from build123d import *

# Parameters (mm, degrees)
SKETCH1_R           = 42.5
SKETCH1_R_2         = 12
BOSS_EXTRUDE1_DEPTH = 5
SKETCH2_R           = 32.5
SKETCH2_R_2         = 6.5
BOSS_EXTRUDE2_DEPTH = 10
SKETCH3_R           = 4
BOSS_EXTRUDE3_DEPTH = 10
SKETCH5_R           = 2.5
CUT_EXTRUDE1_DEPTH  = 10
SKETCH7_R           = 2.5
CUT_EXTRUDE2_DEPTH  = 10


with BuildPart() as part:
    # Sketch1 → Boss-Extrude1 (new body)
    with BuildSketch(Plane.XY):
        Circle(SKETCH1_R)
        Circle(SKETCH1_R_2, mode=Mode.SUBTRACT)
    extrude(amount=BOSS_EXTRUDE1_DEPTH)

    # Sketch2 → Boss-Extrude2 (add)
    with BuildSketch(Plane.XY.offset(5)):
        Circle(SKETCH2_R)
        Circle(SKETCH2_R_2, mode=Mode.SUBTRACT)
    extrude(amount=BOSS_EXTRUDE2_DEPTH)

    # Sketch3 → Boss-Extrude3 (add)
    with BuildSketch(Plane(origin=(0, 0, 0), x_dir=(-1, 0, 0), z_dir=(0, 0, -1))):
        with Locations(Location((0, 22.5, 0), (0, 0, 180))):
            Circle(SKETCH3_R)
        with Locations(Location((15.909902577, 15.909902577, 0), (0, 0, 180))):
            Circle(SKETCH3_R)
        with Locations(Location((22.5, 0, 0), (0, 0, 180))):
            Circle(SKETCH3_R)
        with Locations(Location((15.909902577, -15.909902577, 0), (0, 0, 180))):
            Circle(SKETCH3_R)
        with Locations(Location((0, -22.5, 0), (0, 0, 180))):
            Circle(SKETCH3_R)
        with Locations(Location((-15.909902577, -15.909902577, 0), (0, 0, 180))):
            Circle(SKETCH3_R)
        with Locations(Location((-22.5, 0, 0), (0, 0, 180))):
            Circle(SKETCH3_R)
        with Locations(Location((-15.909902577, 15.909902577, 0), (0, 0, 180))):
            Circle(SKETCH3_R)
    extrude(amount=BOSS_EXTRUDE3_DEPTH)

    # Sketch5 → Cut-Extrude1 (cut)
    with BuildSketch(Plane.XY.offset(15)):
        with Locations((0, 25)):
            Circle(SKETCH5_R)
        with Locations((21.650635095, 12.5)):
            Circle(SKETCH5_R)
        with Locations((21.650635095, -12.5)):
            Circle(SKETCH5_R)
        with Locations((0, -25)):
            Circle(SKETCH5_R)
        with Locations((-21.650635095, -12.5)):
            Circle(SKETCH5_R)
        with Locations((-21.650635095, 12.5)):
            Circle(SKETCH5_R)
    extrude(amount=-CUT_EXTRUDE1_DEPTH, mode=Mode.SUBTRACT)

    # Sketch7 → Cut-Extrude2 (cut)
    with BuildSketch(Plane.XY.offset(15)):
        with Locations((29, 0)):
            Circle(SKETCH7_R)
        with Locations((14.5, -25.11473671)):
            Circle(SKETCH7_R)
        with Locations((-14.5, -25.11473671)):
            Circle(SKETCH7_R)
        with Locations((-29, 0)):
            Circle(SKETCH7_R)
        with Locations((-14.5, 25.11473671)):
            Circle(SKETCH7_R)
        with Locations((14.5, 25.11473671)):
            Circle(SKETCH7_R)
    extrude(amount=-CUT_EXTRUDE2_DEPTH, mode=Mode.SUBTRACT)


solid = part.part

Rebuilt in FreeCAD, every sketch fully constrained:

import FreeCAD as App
import Part
import Sketcher
from FreeCAD import Vector
Q = App.Units.Quantity

doc = App.newDocument("Part")
body = doc.addObject("PartDesign::Body", "Body")

# Sketch on XY plane
sketch1 = doc.addObject("Sketcher::SketchObject", "Sketch")
body.addObject(sketch1)
sketch1.AttachmentSupport = (doc.XY_Plane, [""])
sketch1.MapMode = "FlatFace"
sketch1.addGeometry(Part.Circle(Vector(0, 0, 0), Vector(0, 0, 1), 42.5), False)
sketch1.addGeometry(Part.Circle(Vector(0, 0, 0), Vector(0, 0, 1), 12), False)
sketch1.addConstraint(Sketcher.Constraint("Coincident", 0, 3, -1, 1))
sketch1.addConstraint(Sketcher.Constraint("Coincident", 1, 3, -1, 1))
sketch1.addConstraint(Sketcher.Constraint("Diameter", 0, Q("85 mm")))
sketch1.addConstraint(Sketcher.Constraint("Diameter", 1, Q("24 mm")))
pad1 = doc.addObject("PartDesign::Pad", "Pad")
body.addObject(pad1)
pad1.Profile = sketch1
pad1.Length = 5

# Sketch on XY plane
sketch2 = doc.addObject("Sketcher::SketchObject", "Sketch001")
body.addObject(sketch2)
sketch2.AttachmentSupport = (doc.XY_Plane, [""])
sketch2.MapMode = "FlatFace"
sketch2.AttachmentOffset = App.Placement(Vector(0, 0, 5), App.Rotation())
sketch2.addGeometry(Part.Circle(Vector(0, 0, 0), Vector(0, 0, 1), 32.5), False)
sketch2.addGeometry(Part.Circle(Vector(0, 0, 0), Vector(0, 0, 1), 6.5), False)
sketch2.addConstraint(Sketcher.Constraint("Coincident", 0, 3, -1, 1))
sketch2.addConstraint(Sketcher.Constraint("Coincident", 1, 3, -1, 1))
sketch2.addConstraint(Sketcher.Constraint("Diameter", 0, Q("65 mm")))
sketch2.addConstraint(Sketcher.Constraint("Diameter", 1, Q("13 mm")))
pad2 = doc.addObject("PartDesign::Pad", "Pad001")
body.addObject(pad2)
pad2.Profile = sketch2
pad2.Length = 10

# Sketch on XY plane
sketch3 = doc.addObject("Sketcher::SketchObject", "Sketch002")
body.addObject(sketch3)
sketch3.AttachmentSupport = (doc.XY_Plane, [""])
sketch3.MapMode = "FlatFace"
sketch3.addGeometry(Part.Circle(Vector(0, 22.5, 0), Vector(0, 0, 1), 4), False)
sketch3.addGeometry(Part.Circle(Vector(-15.909903, 15.909903, 0), Vector(0, 0, 1), 4), False)
sketch3.addGeometry(Part.Circle(Vector(-22.5, 0, 0), Vector(0, 0, 1), 4), False)
sketch3.addGeometry(Part.Circle(Vector(-15.909903, -15.909903, 0), Vector(0, 0, 1), 4), False)
sketch3.addGeometry(Part.Circle(Vector(0, -22.5, 0), Vector(0, 0, 1), 4), False)
sketch3.addGeometry(Part.Circle(Vector(15.909903, -15.909903, 0), Vector(0, 0, 1), 4), False)
sketch3.addGeometry(Part.Circle(Vector(22.5, 0, 0), Vector(0, 0, 1), 4), False)
sketch3.addGeometry(Part.Circle(Vector(15.909903, 15.909903, 0), Vector(0, 0, 1), 4), False)
sketch3.addConstraint(Sketcher.Constraint("Equal", 0, 1))
sketch3.addConstraint(Sketcher.Constraint("Equal", 1, 2))
sketch3.addConstraint(Sketcher.Constraint("Equal", 2, 3))
sketch3.addConstraint(Sketcher.Constraint("Equal", 3, 4))
sketch3.addConstraint(Sketcher.Constraint("Equal", 4, 5))
sketch3.addConstraint(Sketcher.Constraint("Equal", 5, 6))
sketch3.addConstraint(Sketcher.Constraint("Equal", 6, 7))
sketch3.addConstraint(Sketcher.Constraint("Symmetric", 0, 3, 4, 3, -1, 1))
sketch3.addConstraint(Sketcher.Constraint("Symmetric", 1, 3, 5, 3, -1, 1))
sketch3.addConstraint(Sketcher.Constraint("Symmetric", 2, 3, 6, 3, -1, 1))
sketch3.addConstraint(Sketcher.Constraint("Symmetric", 3, 3, 7, 3, -1, 1))
sketch3.addConstraint(Sketcher.Constraint("Symmetric", 3, 3, 5, 3, -2))
sketch3.addConstraint(Sketcher.Constraint("PointOnObject", 0, 3, -2))
sketch3.addConstraint(Sketcher.Constraint("PointOnObject", 2, 3, -1))
sketch3.addConstraint(Sketcher.Constraint("Diameter", 0, Q("8 mm")))
sketch3.addConstraint(Sketcher.Constraint("DistanceY", 4, 3, 0, 3, Q("45 mm")))
sketch3.addConstraint(Sketcher.Constraint("DistanceX", 2, 3, -1, 1, Q("22.5 mm")))
sketch3.addConstraint(Sketcher.Constraint("DistanceX", 1, 3, -1, 1, Q("15.909903 mm")))
sketch3.addConstraint(Sketcher.Constraint("DistanceY", -1, 1, 1, 3, Q("15.909903 mm")))
pad3 = doc.addObject("PartDesign::Pad", "Pad002")
body.addObject(pad3)
pad3.Profile = sketch3
pad3.Length = 10
pad3.Reversed = True

# Sketch on XY plane
sketch4 = doc.addObject("Sketcher::SketchObject", "Sketch003")
body.addObject(sketch4)
sketch4.AttachmentSupport = (doc.XY_Plane, [""])
sketch4.MapMode = "FlatFace"
sketch4.AttachmentOffset = App.Placement(Vector(0, 0, 15), App.Rotation())
sketch4.addGeometry(Part.Circle(Vector(0, 25, 0), Vector(0, 0, 1), 2.5), False)
sketch4.addGeometry(Part.Circle(Vector(21.650635, 12.5, 0), Vector(0, 0, 1), 2.5), False)
sketch4.addGeometry(Part.Circle(Vector(21.650635, -12.5, 0), Vector(0, 0, 1), 2.5), False)
sketch4.addGeometry(Part.Circle(Vector(0, -25, 0), Vector(0, 0, 1), 2.5), False)
sketch4.addGeometry(Part.Circle(Vector(-21.650635, -12.5, 0), Vector(0, 0, 1), 2.5), False)
sketch4.addGeometry(Part.Circle(Vector(-21.650635, 12.5, 0), Vector(0, 0, 1), 2.5), False)
sketch4.addConstraint(Sketcher.Constraint("Equal", 0, 1))
sketch4.addConstraint(Sketcher.Constraint("Equal", 1, 2))
sketch4.addConstraint(Sketcher.Constraint("Equal", 2, 3))
sketch4.addConstraint(Sketcher.Constraint("Equal", 3, 4))
sketch4.addConstraint(Sketcher.Constraint("Equal", 4, 5))
sketch4.addConstraint(Sketcher.Constraint("Symmetric", 0, 3, 3, 3, -1, 1))
sketch4.addConstraint(Sketcher.Constraint("Symmetric", 1, 3, 4, 3, -1, 1))
sketch4.addConstraint(Sketcher.Constraint("Symmetric", 2, 3, 5, 3, -1, 1))
sketch4.addConstraint(Sketcher.Constraint("Symmetric", 2, 3, 4, 3, -2))
sketch4.addConstraint(Sketcher.Constraint("PointOnObject", 0, 3, -2))
sketch4.addConstraint(Sketcher.Constraint("Diameter", 0, Q("5 mm")))
sketch4.addConstraint(Sketcher.Constraint("DistanceY", -1, 1, 0, 3, Q("25 mm")))
sketch4.addConstraint(Sketcher.Constraint("DistanceY", 2, 3, 1, 3, Q("25 mm")))
sketch4.addConstraint(Sketcher.Constraint("DistanceX", 4, 3, 2, 3, Q("43.30127 mm")))
pocket1 = doc.addObject("PartDesign::Pocket", "Pocket")
body.addObject(pocket1)
pocket1.Profile = sketch4
pocket1.Length = 10

# Sketch on XY plane
sketch5 = doc.addObject("Sketcher::SketchObject", "Sketch004")
body.addObject(sketch5)
sketch5.AttachmentSupport = (doc.XY_Plane, [""])
sketch5.MapMode = "FlatFace"
sketch5.AttachmentOffset = App.Placement(Vector(0, 0, 15), App.Rotation())
sketch5.addGeometry(Part.Circle(Vector(29, 0, 0), Vector(0, 0, 1), 2.5), False)
sketch5.addGeometry(Part.Circle(Vector(14.5, -25.114737, 0), Vector(0, 0, 1), 2.5), False)
sketch5.addGeometry(Part.Circle(Vector(-14.5, -25.114737, 0), Vector(0, 0, 1), 2.5), False)
sketch5.addGeometry(Part.Circle(Vector(-29, 0, 0), Vector(0, 0, 1), 2.5), False)
sketch5.addGeometry(Part.Circle(Vector(-14.5, 25.114737, 0), Vector(0, 0, 1), 2.5), False)
sketch5.addGeometry(Part.Circle(Vector(14.5, 25.114737, 0), Vector(0, 0, 1), 2.5), False)
sketch5.addConstraint(Sketcher.Constraint("Equal", 0, 1))
sketch5.addConstraint(Sketcher.Constraint("Equal", 1, 2))
sketch5.addConstraint(Sketcher.Constraint("Equal", 2, 3))
sketch5.addConstraint(Sketcher.Constraint("Equal", 3, 4))
sketch5.addConstraint(Sketcher.Constraint("Equal", 4, 5))
sketch5.addConstraint(Sketcher.Constraint("Symmetric", 0, 3, 3, 3, -1, 1))
sketch5.addConstraint(Sketcher.Constraint("Symmetric", 1, 3, 4, 3, -1, 1))
sketch5.addConstraint(Sketcher.Constraint("Symmetric", 2, 3, 5, 3, -1, 1))
sketch5.addConstraint(Sketcher.Constraint("Symmetric", 1, 3, 2, 3, -2))
sketch5.addConstraint(Sketcher.Constraint("PointOnObject", 0, 3, -1))
sketch5.addConstraint(Sketcher.Constraint("Diameter", 0, Q("5 mm")))
sketch5.addConstraint(Sketcher.Constraint("DistanceX", -1, 1, 0, 3, Q("29 mm")))
sketch5.addConstraint(Sketcher.Constraint("DistanceX", 2, 3, 1, 3, Q("29 mm")))
sketch5.addConstraint(Sketcher.Constraint("DistanceY", 1, 3, -1, 1, Q("25.114737 mm")))
pocket2 = doc.addObject("PartDesign::Pocket", "Pocket001")
body.addObject(pocket2)
pocket2.Profile = sketch5
pocket2.Length = 10

doc.recompute()
